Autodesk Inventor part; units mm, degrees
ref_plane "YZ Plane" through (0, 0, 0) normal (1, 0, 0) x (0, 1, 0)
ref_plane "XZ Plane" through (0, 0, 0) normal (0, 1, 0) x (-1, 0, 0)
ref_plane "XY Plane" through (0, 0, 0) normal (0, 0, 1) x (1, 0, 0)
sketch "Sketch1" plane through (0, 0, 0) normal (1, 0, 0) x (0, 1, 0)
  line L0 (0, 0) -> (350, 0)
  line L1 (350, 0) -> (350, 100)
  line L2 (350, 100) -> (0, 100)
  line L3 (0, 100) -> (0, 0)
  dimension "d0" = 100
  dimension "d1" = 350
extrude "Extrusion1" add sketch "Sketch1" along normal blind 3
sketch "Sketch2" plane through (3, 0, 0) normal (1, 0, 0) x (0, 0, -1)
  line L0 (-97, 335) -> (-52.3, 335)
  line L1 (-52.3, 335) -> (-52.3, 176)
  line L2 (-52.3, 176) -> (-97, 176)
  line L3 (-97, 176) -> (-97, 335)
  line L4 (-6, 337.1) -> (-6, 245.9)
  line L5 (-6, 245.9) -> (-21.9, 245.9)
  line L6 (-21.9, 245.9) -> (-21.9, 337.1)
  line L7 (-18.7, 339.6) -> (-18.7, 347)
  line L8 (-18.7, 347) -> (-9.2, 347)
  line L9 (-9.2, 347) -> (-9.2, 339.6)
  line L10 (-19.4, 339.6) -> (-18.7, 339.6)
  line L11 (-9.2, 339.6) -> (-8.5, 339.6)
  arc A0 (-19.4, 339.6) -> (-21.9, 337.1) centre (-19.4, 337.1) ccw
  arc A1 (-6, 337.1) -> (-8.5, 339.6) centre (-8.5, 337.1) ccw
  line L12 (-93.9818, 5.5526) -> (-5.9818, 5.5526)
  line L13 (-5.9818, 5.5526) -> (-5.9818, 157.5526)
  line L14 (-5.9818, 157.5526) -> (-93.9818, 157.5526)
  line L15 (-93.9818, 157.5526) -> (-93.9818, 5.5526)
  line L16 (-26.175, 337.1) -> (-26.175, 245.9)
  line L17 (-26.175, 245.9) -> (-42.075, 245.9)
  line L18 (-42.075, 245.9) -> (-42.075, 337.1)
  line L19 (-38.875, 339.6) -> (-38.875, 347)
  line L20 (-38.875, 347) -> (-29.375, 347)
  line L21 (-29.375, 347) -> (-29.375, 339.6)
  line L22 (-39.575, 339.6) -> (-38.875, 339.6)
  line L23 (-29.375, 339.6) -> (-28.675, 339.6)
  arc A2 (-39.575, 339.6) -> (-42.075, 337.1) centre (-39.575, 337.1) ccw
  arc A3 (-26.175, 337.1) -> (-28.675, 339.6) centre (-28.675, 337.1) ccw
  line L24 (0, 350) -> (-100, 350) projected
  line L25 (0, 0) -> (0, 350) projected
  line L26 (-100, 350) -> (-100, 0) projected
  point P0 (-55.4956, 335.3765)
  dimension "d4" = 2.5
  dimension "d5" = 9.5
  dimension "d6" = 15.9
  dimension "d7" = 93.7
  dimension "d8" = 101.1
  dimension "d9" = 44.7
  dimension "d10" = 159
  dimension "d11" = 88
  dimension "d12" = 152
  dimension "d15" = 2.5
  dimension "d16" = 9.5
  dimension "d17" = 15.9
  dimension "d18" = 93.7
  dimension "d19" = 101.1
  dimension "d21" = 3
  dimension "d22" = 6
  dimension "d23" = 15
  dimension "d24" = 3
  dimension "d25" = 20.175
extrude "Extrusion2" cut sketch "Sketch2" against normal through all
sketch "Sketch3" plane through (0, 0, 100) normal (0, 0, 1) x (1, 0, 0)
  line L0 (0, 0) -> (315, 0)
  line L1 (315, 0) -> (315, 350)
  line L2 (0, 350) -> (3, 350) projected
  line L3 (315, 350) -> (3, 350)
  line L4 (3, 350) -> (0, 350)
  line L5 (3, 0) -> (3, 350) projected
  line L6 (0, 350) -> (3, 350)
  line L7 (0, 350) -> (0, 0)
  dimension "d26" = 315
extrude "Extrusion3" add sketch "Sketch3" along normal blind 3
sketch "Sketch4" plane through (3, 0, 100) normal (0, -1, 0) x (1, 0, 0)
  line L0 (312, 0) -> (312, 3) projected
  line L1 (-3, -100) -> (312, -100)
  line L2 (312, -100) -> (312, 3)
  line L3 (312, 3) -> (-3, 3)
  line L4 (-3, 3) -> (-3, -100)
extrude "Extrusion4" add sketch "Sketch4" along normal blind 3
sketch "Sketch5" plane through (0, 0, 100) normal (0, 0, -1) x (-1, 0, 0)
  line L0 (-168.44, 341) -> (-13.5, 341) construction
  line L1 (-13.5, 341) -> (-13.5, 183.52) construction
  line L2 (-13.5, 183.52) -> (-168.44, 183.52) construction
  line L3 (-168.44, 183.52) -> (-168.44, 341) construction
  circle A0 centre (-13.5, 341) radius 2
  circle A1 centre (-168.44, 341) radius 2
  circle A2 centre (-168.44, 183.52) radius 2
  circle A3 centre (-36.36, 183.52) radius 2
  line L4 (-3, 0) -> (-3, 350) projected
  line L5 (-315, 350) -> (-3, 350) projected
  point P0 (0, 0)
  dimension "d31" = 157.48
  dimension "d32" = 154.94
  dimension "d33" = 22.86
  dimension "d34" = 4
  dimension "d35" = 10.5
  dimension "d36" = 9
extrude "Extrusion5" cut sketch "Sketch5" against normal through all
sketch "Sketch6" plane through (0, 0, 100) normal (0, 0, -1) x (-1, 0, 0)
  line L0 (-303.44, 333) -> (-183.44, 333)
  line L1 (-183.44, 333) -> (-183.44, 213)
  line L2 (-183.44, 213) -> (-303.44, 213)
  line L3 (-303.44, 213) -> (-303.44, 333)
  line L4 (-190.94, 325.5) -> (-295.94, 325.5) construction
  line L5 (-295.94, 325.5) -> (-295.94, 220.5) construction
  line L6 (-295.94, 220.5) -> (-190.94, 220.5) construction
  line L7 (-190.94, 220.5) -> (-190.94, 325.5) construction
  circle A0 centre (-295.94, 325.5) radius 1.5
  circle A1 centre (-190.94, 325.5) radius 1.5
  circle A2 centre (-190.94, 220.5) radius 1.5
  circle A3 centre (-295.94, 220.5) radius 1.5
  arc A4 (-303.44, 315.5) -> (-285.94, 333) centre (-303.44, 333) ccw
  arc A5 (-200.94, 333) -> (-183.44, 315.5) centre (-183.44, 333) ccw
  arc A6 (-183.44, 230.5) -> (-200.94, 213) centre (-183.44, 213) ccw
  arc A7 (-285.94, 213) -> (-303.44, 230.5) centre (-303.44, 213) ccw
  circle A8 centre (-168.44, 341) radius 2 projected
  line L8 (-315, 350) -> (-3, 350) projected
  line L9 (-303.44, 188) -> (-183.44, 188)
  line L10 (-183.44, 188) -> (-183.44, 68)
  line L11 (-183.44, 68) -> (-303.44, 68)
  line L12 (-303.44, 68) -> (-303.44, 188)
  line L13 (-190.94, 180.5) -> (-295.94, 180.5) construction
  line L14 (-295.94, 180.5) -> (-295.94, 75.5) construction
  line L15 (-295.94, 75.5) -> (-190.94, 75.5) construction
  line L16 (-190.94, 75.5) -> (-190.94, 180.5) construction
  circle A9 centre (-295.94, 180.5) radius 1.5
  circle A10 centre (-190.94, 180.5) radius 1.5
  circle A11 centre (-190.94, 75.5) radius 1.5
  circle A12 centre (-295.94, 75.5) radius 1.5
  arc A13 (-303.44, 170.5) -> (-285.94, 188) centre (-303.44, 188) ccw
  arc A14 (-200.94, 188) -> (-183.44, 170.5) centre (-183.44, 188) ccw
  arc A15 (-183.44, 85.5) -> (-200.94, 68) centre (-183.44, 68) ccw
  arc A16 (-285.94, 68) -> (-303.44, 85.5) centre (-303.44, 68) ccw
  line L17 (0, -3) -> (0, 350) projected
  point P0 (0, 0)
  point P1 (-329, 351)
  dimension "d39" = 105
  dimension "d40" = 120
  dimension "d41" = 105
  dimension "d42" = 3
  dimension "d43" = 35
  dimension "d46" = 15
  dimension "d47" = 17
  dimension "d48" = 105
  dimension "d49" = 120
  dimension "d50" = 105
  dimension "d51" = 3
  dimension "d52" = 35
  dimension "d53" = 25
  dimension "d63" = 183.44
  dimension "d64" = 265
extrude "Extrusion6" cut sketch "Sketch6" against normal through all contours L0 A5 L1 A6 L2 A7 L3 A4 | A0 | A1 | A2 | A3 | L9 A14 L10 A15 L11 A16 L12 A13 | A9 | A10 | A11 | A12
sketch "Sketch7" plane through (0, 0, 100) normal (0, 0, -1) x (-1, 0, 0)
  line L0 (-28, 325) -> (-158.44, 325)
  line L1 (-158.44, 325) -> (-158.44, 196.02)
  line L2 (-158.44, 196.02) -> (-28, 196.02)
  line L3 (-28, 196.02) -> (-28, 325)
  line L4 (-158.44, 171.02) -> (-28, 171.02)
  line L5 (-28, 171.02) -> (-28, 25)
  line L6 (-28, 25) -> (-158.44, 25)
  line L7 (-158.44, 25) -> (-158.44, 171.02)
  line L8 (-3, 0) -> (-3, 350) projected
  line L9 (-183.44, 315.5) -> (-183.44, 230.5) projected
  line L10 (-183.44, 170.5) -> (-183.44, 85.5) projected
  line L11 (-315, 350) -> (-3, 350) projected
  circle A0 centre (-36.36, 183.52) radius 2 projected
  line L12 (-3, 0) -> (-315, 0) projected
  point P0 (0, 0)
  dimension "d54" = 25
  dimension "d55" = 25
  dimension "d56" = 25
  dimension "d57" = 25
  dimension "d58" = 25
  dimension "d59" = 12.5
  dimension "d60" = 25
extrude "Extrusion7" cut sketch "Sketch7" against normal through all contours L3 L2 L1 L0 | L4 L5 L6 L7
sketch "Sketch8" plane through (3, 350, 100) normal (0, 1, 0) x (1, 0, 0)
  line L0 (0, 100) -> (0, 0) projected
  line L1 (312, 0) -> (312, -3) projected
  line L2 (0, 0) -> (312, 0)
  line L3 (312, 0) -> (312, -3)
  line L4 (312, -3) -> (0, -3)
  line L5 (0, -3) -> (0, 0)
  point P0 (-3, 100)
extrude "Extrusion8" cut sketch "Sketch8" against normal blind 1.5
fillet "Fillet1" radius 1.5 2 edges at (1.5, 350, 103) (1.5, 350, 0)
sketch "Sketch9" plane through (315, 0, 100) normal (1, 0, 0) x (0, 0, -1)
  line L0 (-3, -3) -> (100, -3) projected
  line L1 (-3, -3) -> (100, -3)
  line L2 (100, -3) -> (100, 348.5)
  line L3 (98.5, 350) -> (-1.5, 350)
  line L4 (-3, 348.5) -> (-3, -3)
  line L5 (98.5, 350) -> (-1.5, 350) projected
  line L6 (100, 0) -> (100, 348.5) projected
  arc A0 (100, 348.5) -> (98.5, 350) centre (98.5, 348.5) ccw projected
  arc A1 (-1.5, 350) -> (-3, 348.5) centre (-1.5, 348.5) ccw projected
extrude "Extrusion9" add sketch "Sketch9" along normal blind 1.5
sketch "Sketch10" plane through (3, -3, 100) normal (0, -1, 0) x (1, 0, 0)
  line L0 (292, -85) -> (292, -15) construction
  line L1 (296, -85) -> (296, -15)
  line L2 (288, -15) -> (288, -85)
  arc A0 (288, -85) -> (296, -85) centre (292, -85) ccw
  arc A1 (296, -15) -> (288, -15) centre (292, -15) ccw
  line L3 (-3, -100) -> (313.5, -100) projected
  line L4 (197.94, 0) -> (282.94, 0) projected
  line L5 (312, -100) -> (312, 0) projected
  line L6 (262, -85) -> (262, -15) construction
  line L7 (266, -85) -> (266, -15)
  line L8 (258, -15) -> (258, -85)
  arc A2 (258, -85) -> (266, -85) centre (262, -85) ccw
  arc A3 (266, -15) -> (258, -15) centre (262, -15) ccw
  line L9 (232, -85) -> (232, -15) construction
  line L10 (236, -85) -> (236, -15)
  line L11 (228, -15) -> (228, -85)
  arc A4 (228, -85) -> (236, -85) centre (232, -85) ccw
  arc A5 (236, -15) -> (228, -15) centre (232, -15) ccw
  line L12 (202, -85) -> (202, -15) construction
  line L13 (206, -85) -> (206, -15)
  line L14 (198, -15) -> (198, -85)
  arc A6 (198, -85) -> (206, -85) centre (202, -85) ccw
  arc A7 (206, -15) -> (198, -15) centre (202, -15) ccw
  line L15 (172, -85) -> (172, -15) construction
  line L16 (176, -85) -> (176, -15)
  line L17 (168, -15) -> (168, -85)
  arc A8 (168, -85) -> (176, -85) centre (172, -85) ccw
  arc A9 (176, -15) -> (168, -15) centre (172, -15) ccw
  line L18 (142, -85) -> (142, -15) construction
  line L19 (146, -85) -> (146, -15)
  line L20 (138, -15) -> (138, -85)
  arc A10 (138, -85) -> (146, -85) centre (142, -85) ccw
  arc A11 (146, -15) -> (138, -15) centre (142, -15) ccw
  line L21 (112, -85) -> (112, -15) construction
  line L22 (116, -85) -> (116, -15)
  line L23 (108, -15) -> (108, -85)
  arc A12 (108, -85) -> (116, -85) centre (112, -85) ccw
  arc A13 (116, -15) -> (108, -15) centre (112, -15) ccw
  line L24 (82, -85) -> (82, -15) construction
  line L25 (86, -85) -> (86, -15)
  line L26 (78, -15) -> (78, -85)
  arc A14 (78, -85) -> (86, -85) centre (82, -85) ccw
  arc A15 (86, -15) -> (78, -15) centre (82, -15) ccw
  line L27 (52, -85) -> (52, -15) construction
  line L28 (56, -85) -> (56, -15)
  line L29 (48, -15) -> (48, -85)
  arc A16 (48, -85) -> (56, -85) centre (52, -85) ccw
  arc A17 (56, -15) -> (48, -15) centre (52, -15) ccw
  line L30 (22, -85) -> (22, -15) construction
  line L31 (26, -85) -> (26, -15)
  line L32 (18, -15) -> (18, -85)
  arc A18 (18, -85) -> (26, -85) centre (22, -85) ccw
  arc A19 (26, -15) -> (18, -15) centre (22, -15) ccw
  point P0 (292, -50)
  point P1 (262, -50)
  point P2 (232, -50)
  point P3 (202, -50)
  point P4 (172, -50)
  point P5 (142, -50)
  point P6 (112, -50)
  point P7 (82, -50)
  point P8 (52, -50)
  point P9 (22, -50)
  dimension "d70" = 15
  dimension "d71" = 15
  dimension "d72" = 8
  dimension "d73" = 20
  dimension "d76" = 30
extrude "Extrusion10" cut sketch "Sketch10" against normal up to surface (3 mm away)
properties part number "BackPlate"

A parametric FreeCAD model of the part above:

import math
import FreeCAD as App
import Part
import Sketcher

V = App.Vector
Q = App.Units.Quantity


def edges_at(feature, points):
    """Names of the edges that pass closest to the given points."""
    edges = feature.Shape.Edges
    near = lambda p: min(range(len(edges)), key=lambda i: edges[i].distToShape(Part.Vertex(*p))[0])
    return sorted({f"Edge{near(p) + 1}" for p in points})


def add_polygon(sketch, points):
    """Adds a closed chain of lines whose ends are joined by coincident constraints."""
    first, n = sketch.GeometryCount, len(points)
    for a, b in zip(points, points[1:] + points[:1]):
        sketch.addGeometry(Part.LineSegment(App.Vector(*a, 0), App.Vector(*b, 0)), False)
    for i in range(n):
        sketch.addConstraint(Sketcher.Constraint("Coincident", first + i, 2, first + (i + 1) % n, 1))

doc = App.newDocument("Part")
body = doc.addObject("PartDesign::Body", "Body")

sketch1 = body.newObject("Sketcher::SketchObject", "Sketch")
sketch1.AttachmentSupport = (doc.getObject("YZ_Plane"), [""])
sketch1.MapMode = "FlatFace"
add_polygon(sketch1, [(0, 100), (0, 0), (350, 0), (350, 100)])
sketch1.addConstraint([
    Sketcher.Constraint("Vertical", 0),
    Sketcher.Constraint("Horizontal", 1),
    Sketcher.Constraint("Vertical", 2),
    Sketcher.Constraint("Horizontal", 3),
    Sketcher.Constraint("Coincident", 0, 2, -1, 1),
    Sketcher.Constraint("DistanceX", 1, 1, 1, 2, Q("350 mm")),
    Sketcher.Constraint("DistanceY", 0, 2, 0, 1, Q("100 mm")),
])
pad1 = body.newObject("PartDesign::Pad", "Pad")
pad1.Profile = sketch1
pad1.Length = 3

sketch2 = body.newObject("Sketcher::SketchObject", "Sketch001")
sketch2.AttachmentSupport = (doc.getObject("YZ_Plane"), [""])
sketch2.MapMode = "FlatFace"
sketch2.AttachmentOffset = App.Placement(V(0, 0, 3), App.Rotation())
add_polygon(sketch2, [(335, 52.3), (335, 97), (176, 97), (176, 52.3)])
sketch2.addGeometry(Part.LineSegment(V(245.9, 6, 0), V(337.1, 6, 0)), False)
sketch2.addGeometry(Part.ArcOfCircle(Part.Circle(V(337.1, 8.5, 0), V(0, 0, 1), 2.5), math.radians(-90), math.radians(0)), False)
sketch2.addGeometry(Part.LineSegment(V(339.6, 8.5, 0), V(339.6, 9.2, 0)), False)
sketch2.addGeometry(Part.LineSegment(V(339.6, 9.2, 0), V(347, 9.2, 0)), False)
sketch2.addGeometry(Part.LineSegment(V(347, 9.2, 0), V(347, 18.7, 0)), False)
sketch2.addGeometry(Part.LineSegment(V(347, 18.7, 0), V(339.6, 18.7, 0)), False)
sketch2.addGeometry(Part.LineSegment(V(339.6, 18.7, 0), V(339.6, 19.4, 0)), False)
sketch2.addGeometry(Part.ArcOfCircle(Part.Circle(V(337.1, 19.4, 0), V(0, 0, 1), 2.5), math.radians(0), math.radians(90)), False)
sketch2.addGeometry(Part.LineSegment(V(337.1, 21.9, 0), V(245.9, 21.9, 0)), False)
sketch2.addGeometry(Part.LineSegment(V(245.9, 21.9, 0), V(245.9, 6, 0)), False)
add_polygon(sketch2, [(157.6, 94), (5.6, 94), (5.6, 6), (157.6, 6)])
sketch2.addGeometry(Part.LineSegment(V(245.9, 26.2, 0), V(337.1, 26.2, 0)), False)
sketch2.addGeometry(Part.ArcOfCircle(Part.Circle(V(337.1, 28.7, 0), V(0, 0, 1), 2.5), math.radians(-90), math.radians(0)), False)
sketch2.addGeometry(Part.LineSegment(V(339.6, 28.7, 0), V(339.6, 29.4, 0)), False)
sketch2.addGeometry(Part.LineSegment(V(339.6, 29.4, 0), V(347, 29.4, 0)), False)
sketch2.addGeometry(Part.LineSegment(V(347, 29.4, 0), V(347, 38.9, 0)), False)
sketch2.addGeometry(Part.LineSegment(V(347, 38.9, 0), V(339.6, 38.9, 0)), False)
sketch2.addGeometry(Part.LineSegment(V(339.6, 38.9, 0), V(339.6, 39.6, 0)), False)
sketch2.addGeometry(Part.ArcOfCircle(Part.Circle(V(337.1, 39.6, 0), V(0, 0, 1), 2.5), math.radians(0), math.radians(90)), False)
sketch2.addGeometry(Part.LineSegment(V(337.1, 42.1, 0), V(245.9, 42.1, 0)), False)
sketch2.addGeometry(Part.LineSegment(V(245.9, 42.1, 0), V(245.9, 26.2, 0)), False)
sketch2.addConstraint([
    Sketcher.Constraint("Tangent", 4, 2, 5, 1),
    Sketcher.Constraint("Tangent", 5, 2, 6, 1),
    Sketcher.Constraint("Coincident", 6, 2, 7, 1),
    Sketcher.Constraint("Coincident", 7, 2, 8, 1),
    Sketcher.Constraint("Coincident", 8, 2, 9, 1),
    Sketcher.Constraint("Coincident", 9, 2, 10, 1),
    Sketcher.Constraint("Tangent", 10, 2, 11, 1),
    Sketcher.Constraint("Tangent", 11, 2, 12, 1),
    Sketcher.Constraint("Coincident", 12, 2, 13, 1),
    Sketcher.Constraint("Coincident", 13, 2, 4, 1),
    Sketcher.Constraint("Tangent", 18, 2, 19, 1),
    Sketcher.Constraint("Tangent", 19, 2, 20, 1),
    Sketcher.Constraint("Coincident", 20, 2, 21, 1),
    Sketcher.Constraint("Coincident", 21, 2, 22, 1),
    Sketcher.Constraint("Coincident", 22, 2, 23, 1),
    Sketcher.Constraint("Coincident", 23, 2, 24, 1),
    Sketcher.Constraint("Tangent", 24, 2, 25, 1),
    Sketcher.Constraint("Tangent", 25, 2, 26, 1),
    Sketcher.Constraint("Coincident", 26, 2, 27, 1),
    Sketcher.Constraint("Coincident", 27, 2, 18, 1),
    Sketcher.Constraint("Vertical", 0),
    Sketcher.Constraint("Horizontal", 1),
    Sketcher.Constraint("Vertical", 2),
    Sketcher.Constraint("Horizontal", 3),
    Sketcher.Constraint("Horizontal", 4),
    Sketcher.Constraint("Vertical", 6),
    Sketcher.Constraint("Horizontal", 7),
    Sketcher.Constraint("Vertical", 8),
    Sketcher.Constraint("Horizontal", 9),
    Sketcher.Constraint("Vertical", 10),
    Sketcher.Constraint("Horizontal", 12),
    Sketcher.Constraint("Vertical", 13),
    Sketcher.Constraint("Horizontal", 14),
    Sketcher.Constraint("Vertical", 15),
    Sketcher.Constraint("Horizontal", 16),
    Sketcher.Constraint("Vertical", 17),
    Sketcher.Constraint("Horizontal", 18),
    Sketcher.Constraint("Vertical", 20),
    Sketcher.Constraint("Horizontal", 21),
    Sketcher.Constraint("Vertical", 22),
    Sketcher.Constraint("Horizontal", 23),
    Sketcher.Constraint("Vertical", 24),
    Sketcher.Constraint("Horizontal", 26),
    Sketcher.Constraint("Vertical", 27),
    Sketcher.Constraint("Equal", 5, 11),
    Sketcher.Constraint("Equal", 11, 19),
    Sketcher.Constraint("Equal", 19, 25),
    Sketcher.Constraint("Vertical", 5, 3, 11, 3),
    Sketcher.Constraint("Vertical", 11, 3, 19, 3),
    Sketcher.Constraint("Vertical", 19, 3, 25, 3),
    Sketcher.Constraint("Vertical", 8, 2, 21, 2),
    Sketcher.Constraint("Vertical", 13, 2, 26, 2),
    Sketcher.Constraint("Equal", 6, 10),
    Sketcher.Constraint("Equal", 10, 20),
    Sketcher.Constraint("Equal", 8, 22),
    Sketcher.Constraint("Equal", 20, 24),
    Sketcher.Constraint("Radius", 5, Q("2.5 mm")),
    Sketcher.Constraint("DistanceX", 1, 2, 1, 1, Q("159 mm")),
    Sketcher.Constraint("DistanceX", 14, 2, 14, 1, Q("152 mm")),
    Sketcher.Constraint("DistanceY", 15, 2, 15, 1, Q("88 mm")),
    Sketcher.Constraint("DistanceY", 0, 1, 0, 2, Q("44.7 mm")),
    Sketcher.Constraint("DistanceY", 8, 1, 8, 2, Q("9.5 mm")),
    Sketcher.Constraint("DistanceY", 13, 2, 13, 1, Q("15.9 mm")),
    Sketcher.Constraint("DistanceY", -1, 1, 4, 2, Q("6 mm")),
    Sketcher.Constraint("DistanceX", 4, 1, 4, 2, Q("91.2 mm")),
    Sketcher.Constraint("DistanceX", 7, 1, 7, 2, Q("7.4 mm")),
    Sketcher.Constraint("DistanceX", -1, 1, 0, 2, Q("335 mm")),
    Sketcher.Constraint("DistanceY", -1, 1, 0, 2, Q("97 mm")),
    Sketcher.Constraint("DistanceX", -1, 1, 7, 2, Q("347 mm")),
    Sketcher.Constraint("DistanceY", 5, 3, 19, 3, Q("20.175 mm")),
    Sketcher.Constraint("DistanceX", -1, 1, 14, 2, Q("5.5526 mm")),
    Sketcher.Constraint("DistanceY", -1, 1, 14, 2, Q("93.9818 mm")),
])
pocket1 = body.newObject("PartDesign::Pocket", "Pocket")
pocket1.Profile = sketch2
pocket1.Type = "ThroughAll"

sketch3 = body.newObject("Sketcher::SketchObject", "Sketch002")
sketch3.AttachmentSupport = (doc.getObject("XY_Plane"), [""])
sketch3.MapMode = "FlatFace"
sketch3.AttachmentOffset = App.Placement(V(0, 0, 100), App.Rotation())
add_polygon(sketch3, [(0, 350), (0, 0), (315, 0), (315, 350)])
sketch3.addConstraint([
    Sketcher.Constraint("Vertical", 0),
    Sketcher.Constraint("Horizontal", 1),
    Sketcher.Constraint("Vertical", 2),
    Sketcher.Constraint("Horizontal", 3),
    Sketcher.Constraint("Coincident", 0, 2, -1, 1),
    Sketcher.Constraint("DistanceX", 1, 1, 1, 2, Q("315 mm")),
    Sketcher.Constraint("DistanceY", 0, 2, 0, 1, Q("350 mm")),
])
pad2 = body.newObject("PartDesign::Pad", "Pad001")
pad2.Profile = sketch3
pad2.Length = 3

sketch4 = body.newObject("Sketcher::SketchObject", "Sketch003")
sketch4.AttachmentSupport = (doc.getObject("XZ_Plane"), [""])
sketch4.MapMode = "FlatFace"
add_polygon(sketch4, [(315, 0), (315, 103), (0, 103), (0, 0)])
sketch4.addConstraint([
    Sketcher.Constraint("Vertical", 0),
    Sketcher.Constraint("Horizontal", 1),
    Sketcher.Constraint("Vertical", 2),
    Sketcher.Constraint("Horizontal", 3),
    Sketcher.Constraint("Coincident", 2, 2, -1, 1),
    Sketcher.Constraint("DistanceX", 1, 2, 1, 1, Q("315 mm")),
    Sketcher.Constraint("DistanceY", 0, 1, 0, 2, Q("103 mm")),
])
pad3 = body.newObject("PartDesign::Pad", "Pad002")
pad3.Profile = sketch4
pad3.Length = 3

sketch5 = body.newObject("Sketcher::SketchObject", "Sketch004")
sketch5.AttachmentSupport = (doc.getObject("XY_Plane"), [""])
sketch5.MapMode = "FlatFace"
sketch5.AttachmentOffset = App.Placement(V(0, 0, 100), App.Rotation())
sketch5.addGeometry([
    Part.Circle(V(13.5, 341, 0), V(0, 0, 1), 2),
    Part.Circle(V(168.4, 341, 0), V(0, 0, 1), 2),
    Part.Circle(V(168.4, 183.5, 0), V(0, 0, 1), 2),
    Part.Circle(V(36.4, 183.5, 0), V(0, 0, 1), 2),
], False)
sketch5.addConstraint([
    Sketcher.Constraint("Equal", 0, 1),
    Sketcher.Constraint("Equal", 1, 2),
    Sketcher.Constraint("Equal", 2, 3),
    Sketcher.Constraint("Horizontal", 0, 3, 1, 3),
    Sketcher.Constraint("Horizontal", 2, 3, 3, 3),
    Sketcher.Constraint("Vertical", 1, 3, 2, 3),
    Sketcher.Constraint("Diameter", 0, Q("4 mm")),
    Sketcher.Constraint("DistanceX", 0, 3, 1, 3, Q("154.94 mm")),
    Sketcher.Constraint("DistanceY", 2, 3, 1, 3, Q("157.48 mm")),
    Sketcher.Constraint("DistanceX", 0, 3, 3, 3, Q("22.86 mm")),
    Sketcher.Constraint("DistanceY", -1, 1, 0, 3, Q("341 mm")),
    Sketcher.Constraint("DistanceX", -1, 1, 0, 3, Q("13.5 mm")),
])
pocket2 = body.newObject("PartDesign::Pocket", "Pocket001")
pocket2.Profile = sketch5
pocket2.Type = "ThroughAll"
pocket2.Reversed = True

sketch6 = body.newObject("Sketcher::SketchObject", "Sketch005")
sketch6.AttachmentSupport = (doc.getObject("XY_Plane"), [""])
sketch6.MapMode = "FlatFace"
sketch6.AttachmentOffset = App.Placement(V(0, 0, 100), App.Rotation())
sketch6.addGeometry([
    Part.LineSegment(V(200.9, 333, 0), V(285.9, 333, 0)),
    Part.ArcOfCircle(Part.Circle(V(303.4, 333, 0), V(0, 0, 1), 17.5), math.radians(180), math.radians(270)),
    Part.LineSegment(V(303.4, 315.5, 0), V(303.4, 230.5, 0)),
    Part.ArcOfCircle(Part.Circle(V(303.4, 213, 0), V(0, 0, 1), 17.5), math.radians(90), math.radians(180)),
    Part.LineSegment(V(285.9, 213, 0), V(200.9, 213, 0)),
    Part.ArcOfCircle(Part.Circle(V(183.4, 213, 0), V(0, 0, 1), 17.5), math.radians(0), math.radians(90)),
    Part.LineSegment(V(183.4, 230.5, 0), V(183.4, 315.5, 0)),
    Part.ArcOfCircle(Part.Circle(V(183.4, 333, 0), V(0, 0, 1), 17.5), math.radians(-90), math.radians(0)),
    Part.Circle(V(295.9, 325.5, 0), V(0, 0, 1), 1.5),
    Part.Circle(V(190.9, 325.5, 0), V(0, 0, 1), 1.5),
    Part.Circle(V(190.9, 220.5, 0), V(0, 0, 1), 1.5),
    Part.Circle(V(295.9, 220.5, 0), V(0, 0, 1), 1.5),
    Part.LineSegment(V(200.9, 188, 0), V(285.9, 188, 0)),
    Part.ArcOfCircle(Part.Circle(V(303.4, 188, 0), V(0, 0, 1), 17.5), math.radians(180), math.radians(270)),
    Part.LineSegment(V(303.4, 170.5, 0), V(303.4, 85.5, 0)),
    Part.ArcOfCircle(Part.Circle(V(303.4, 68, 0), V(0, 0, 1), 17.5), math.radians(90), math.radians(180)),
    Part.LineSegment(V(285.9, 68, 0), V(200.9, 68, 0)),
    Part.ArcOfCircle(Part.Circle(V(183.4, 68, 0), V(0, 0, 1), 17.5), math.radians(0), math.radians(90)),
    Part.LineSegment(V(183.4, 85.5, 0), V(183.4, 170.5, 0)),
    Part.ArcOfCircle(Part.Circle(V(183.4, 188, 0), V(0, 0, 1), 17.5), math.radians(-90), math.radians(0)),
    Part.Circle(V(295.9, 180.5, 0), V(0, 0, 1), 1.5),
    Part.Circle(V(190.9, 180.5, 0), V(0, 0, 1), 1.5),
    Part.Circle(V(190.9, 75.5, 0), V(0, 0, 1), 1.5),
    Part.Circle(V(295.9, 75.5, 0), V(0, 0, 1), 1.5),
], False)
sketch6.addConstraint([
    Sketcher.Constraint("Coincident", 0, 2, 1, 1),
    Sketcher.Constraint("Coincident", 1, 2, 2, 1),
    Sketcher.Constraint("Coincident", 2, 2, 3, 1),
    Sketcher.Constraint("Coincident", 3, 2, 4, 1),
    Sketcher.Constraint("Coincident", 4, 2, 5, 1),
    Sketcher.Constraint("Coincident", 5, 2, 6, 1),
    Sketcher.Constraint("Coincident", 6, 2, 7, 1),
    Sketcher.Constraint("Coincident", 7, 2, 0, 1),
    Sketcher.Constraint("Coincident", 12, 2, 13, 1),
    Sketcher.Constraint("Coincident", 13, 2, 14, 1),
    Sketcher.Constraint("Coincident", 14, 2, 15, 1),
    Sketcher.Constraint("Coincident", 15, 2, 16, 1),
    Sketcher.Constraint("Coincident", 16, 2, 17, 1),
    Sketcher.Constraint("Coincident", 17, 2, 18, 1),
    Sketcher.Constraint("Coincident", 18, 2, 19, 1),
    Sketcher.Constraint("Coincident", 19, 2, 12, 1),
    Sketcher.Constraint("Horizontal", 0),
    Sketcher.Constraint("Vertical", 2),
    Sketcher.Constraint("Horizontal", 4),
    Sketcher.Constraint("Vertical", 6),
    Sketcher.Constraint("Horizontal", 12),
    Sketcher.Constraint("Vertical", 14),
    Sketcher.Constraint("Horizontal", 16),
    Sketcher.Constraint("Vertical", 18),
    Sketcher.Constraint("Equal", 1, 3),
    Sketcher.Constraint("Equal", 3, 5),
    Sketcher.Constraint("Equal", 5, 7),
    Sketcher.Constraint("Equal", 8, 9),
    Sketcher.Constraint("Equal", 9, 10),
    Sketcher.Constraint("Equal", 10, 11),
    Sketcher.Constraint("Equal", 7, 13),
    Sketcher.Constraint("Equal", 13, 15),
    Sketcher.Constraint("Equal", 15, 17),
    Sketcher.Constraint("Equal", 17, 19),
    Sketcher.Constraint("Equal", 11, 20),
    Sketcher.Constraint("Equal", 20, 21),
    Sketcher.Constraint("Equal", 21, 22),
    Sketcher.Constraint("Equal", 22, 23),
    Sketcher.Constraint("Horizontal", 3, 3, 5, 3),
    Sketcher.Constraint("Horizontal", 1, 3, 7, 3),
    Sketcher.Constraint("Horizontal", 8, 3, 9, 3),
    Sketcher.Constraint("Horizontal", 10, 3, 11, 3),
    Sketcher.Constraint("Horizontal", 15, 3, 17, 3),
    Sketcher.Constraint("Horizontal", 13, 3, 19, 3),
    Sketcher.Constraint("Horizontal", 20, 3, 21, 3),
    Sketcher.Constraint("Horizontal", 22, 3, 23, 3),
    Sketcher.Constraint("Horizontal", 7, 3, 0, 2),
    Sketcher.Constraint("Horizontal", 5, 3, 3, 2),
    Sketcher.Constraint("Horizontal", 19, 3, 12, 2),
    Sketcher.Constraint("Horizontal", 17, 3, 15, 2),
    Sketcher.Constraint("Vertical", 1, 3, 3, 3),
    Sketcher.Constraint("Vertical", 5, 3, 7, 3),
    Sketcher.Constraint("Vertical", 9, 3, 10, 3),
    Sketcher.Constraint("Vertical", 8, 3, 11, 3),
    Sketcher.Constraint("Vertical", 3, 3, 13, 3),
    Sketcher.Constraint("Vertical", 13, 3, 15, 3),
    Sketcher.Constraint("Vertical", 7, 3, 17, 3),
    Sketcher.Constraint("Vertical", 17, 3, 19, 3),
    Sketcher.Constraint("Vertical", 11, 3, 20, 3),
    Sketcher.Constraint("Vertical", 10, 3, 21, 3),
    Sketcher.Constraint("Vertical", 21, 3, 22, 3),
    Sketcher.Constraint("Vertical", 20, 3, 23, 3),
    Sketcher.Constraint("Vertical", 15, 3, 1, 2),
    Sketcher.Constraint("Vertical", 19, 3, 5, 2),
    Sketcher.Constraint("Vertical", 2, 2, 13, 2),
    Sketcher.Constraint("Vertical", 6, 2, 17, 2),
    Sketcher.Constraint("Equal", 16, 2),
    Sketcher.Constraint("Equal", 6, 14),
    Sketcher.Constraint("Diameter", 8, Q("3 mm")),
    Sketcher.Constraint("Radius", 1, Q("17.5 mm")),
    Sketcher.Constraint("DistanceY", 3, 3, 1, 3, Q("120 mm")),
    Sketcher.Constraint("DistanceX", 9, 3, 8, 3, Q("105 mm")),
    Sketcher.Constraint("DistanceY", 10, 3, 9, 3, Q("105 mm")),
    Sketcher.Constraint("DistanceY", 13, 3, 3, 3, Q("25 mm")),
    Sketcher.Constraint("DistanceY", 22, 3, 21, 3, Q("105 mm")),
    Sketcher.Constraint("DistanceX", -1, 1, 5, 3, Q("183.44 mm")),
    Sketcher.Constraint("DistanceY", -1, 1, 1, 3, Q("333 mm")),
    Sketcher.Constraint("DistanceY", 20, 3, 11, 3, Q("40 mm")),
    Sketcher.Constraint("DistanceX", 0, 2, 8, 3, Q("10 mm")),
    Sketcher.Constraint("DistanceY", 1, 2, 8, 3, Q("10 mm")),
])
pocket3 = body.newObject("PartDesign::Pocket", "Pocket002")
pocket3.Profile = sketch6
pocket3.Type = "ThroughAll"
pocket3.Reversed = True

sketch7 = body.newObject("Sketcher::SketchObject", "Sketch006")
sketch7.AttachmentSupport = (doc.getObject("XY_Plane"), [""])
sketch7.MapMode = "FlatFace"
sketch7.AttachmentOffset = App.Placement(V(0, 0, 100), App.Rotation())
add_polygon(sketch7, [(28, 196), (28, 325), (158, 325), (158, 196)])
add_polygon(sketch7, [(28, 171), (158, 171), (158, 25), (28, 25)])
sketch7.addConstraint([
    Sketcher.Constraint("Vertical", 0),
    Sketcher.Constraint("Horizontal", 1),
    Sketcher.Constraint("Vertical", 2),
    Sketcher.Constraint("Horizontal", 3),
    Sketcher.Constraint("Horizontal", 4),
    Sketcher.Constraint("Vertical", 5),
    Sketcher.Constraint("Horizontal", 6),
    Sketcher.Constraint("Vertical", 7),
    Sketcher.Constraint("Vertical", 2, 2, 4, 2),
    Sketcher.Constraint("Vertical", 3, 2, 6, 2),
    Sketcher.Constraint("DistanceY", -1, 1, 5, 2, Q("25 mm")),
    Sketcher.Constraint("DistanceY", 4, 2, 2, 2, Q("25 mm")),
    Sketcher.Constraint("DistanceX", -1, 1, 0, 2, Q("28 mm")),
    Sketcher.Constraint("DistanceY", -1, 1, 0, 2, Q("325 mm")),
    Sketcher.Constraint("DistanceX", 1, 1, 1, 2, Q("130.44 mm")),
    Sketcher.Constraint("DistanceY", 0, 1, 0, 2, Q("128.98 mm")),
])
pocket4 = body.newObject("PartDesign::Pocket", "Pocket003")
pocket4.Profile = sketch7
pocket4.Type = "ThroughAll"
pocket4.Reversed = True

sketch8 = body.newObject("Sketcher::SketchObject", "Sketch007")
sketch8.AttachmentSupport = (doc.getObject("XZ_Plane"), [""])
sketch8.MapMode = "FlatFace"
sketch8.AttachmentOffset = App.Placement(V(0, 0, -350), App.Rotation())
add_polygon(sketch8, [(315, 103), (315, 100), (3, 100), (3, 103)])
sketch8.addConstraint([
    Sketcher.Constraint("Vertical", 0),
    Sketcher.Constraint("Horizontal", 1),
    Sketcher.Constraint("Vertical", 2),
    Sketcher.Constraint("Horizontal", 3),
    Sketcher.Constraint("DistanceX", 1, 2, 1, 1, Q("312 mm")),
    Sketcher.Constraint("DistanceY", 0, 2, 0, 1, Q("3 mm")),
    Sketcher.Constraint("DistanceX", -1, 1, 0, 2, Q("315 mm")),
    Sketcher.Constraint("DistanceY", -1, 1, 0, 2, Q("100 mm")),
])
pocket5 = body.newObject("PartDesign::Pocket", "Pocket004")
pocket5.Profile = sketch8
pocket5.Length = 1.5
pocket5.Reversed = True
doc.recompute()

fillet = body.newObject("PartDesign::Fillet", "Fillet")
fillet.Base = (pocket5, edges_at(pocket5, [(1.5, 350, 103), (1.5, 350, 0)]))
fillet.Radius = 1.5

sketch9 = body.newObject("Sketcher::SketchObject", "Sketch008")
sketch9.AttachmentSupport = (doc.getObject("YZ_Plane"), [""])
sketch9.MapMode = "FlatFace"
sketch9.AttachmentOffset = App.Placement(V(0, 0, 315), App.Rotation())
sketch9.addGeometry([
    Part.LineSegment(V(348.5, 103, 0), V(-3, 103, 0)),
    Part.LineSegment(V(-3, 103, 0), V(-3, 0, 0)),
    Part.LineSegment(V(-3, 0, 0), V(348.5, 0, 0)),
    Part.ArcOfCircle(Part.Circle(V(348.5, 1.5, 0), V(0, 0, 1), 1.5), math.radians(-90), math.radians(0)),
    Part.LineSegment(V(350, 1.5, 0), V(350, 101.5, 0)),
    Part.ArcOfCircle(Part.Circle(V(348.5, 101.5, 0), V(0, 0, 1), 1.5), math.radians(0), math.radians(90)),
], False)
sketch9.addConstraint([
    Sketcher.Constraint("Coincident", 0, 2, 1, 1),
    Sketcher.Constraint("Coincident", 1, 2, 2, 1),
    Sketcher.Constraint("Tangent", 2, 2, 3, 1),
    Sketcher.Constraint("Tangent", 3, 2, 4, 1),
    Sketcher.Constraint("Tangent", 4, 2, 5, 1),
    Sketcher.Constraint("Tangent", 5, 2, 0, 1),
    Sketcher.Constraint("Horizontal", 0),
    Sketcher.Constraint("Vertical", 1),
    Sketcher.Constraint("Horizontal", 2),
    Sketcher.Constraint("Vertical", 4),
    Sketcher.Constraint("Equal", 3, 5),
    Sketcher.Constraint("PointOnObject", 1, 2, -1),
    Sketcher.Constraint("Radius", 3, Q("1.5 mm")),
    Sketcher.Constraint("DistanceY", 1, 2, 1, 1, Q("103 mm")),
    Sketcher.Constraint("DistanceX", 0, 2, 0, 1, Q("351.5 mm")),
    Sketcher.Constraint("DistanceX", 0, 2, -1, 1, Q("3 mm")),
])
pad4 = body.newObject("PartDesign::Pad", "Pad003")
pad4.Profile = sketch9
pad4.Length = 1.5

sketch10 = body.newObject("Sketcher::SketchObject", "Sketch009")
sketch10.AttachmentSupport = (doc.getObject("XZ_Plane"), [""])
sketch10.MapMode = "FlatFace"
sketch10.AttachmentOffset = App.Placement(V(0, 0, 3), App.Rotation())
sketch10.addGeometry([
    Part.ArcOfCircle(Part.Circle(V(295, 15, 0), V(0, 0, 1), 4), math.radians(180), math.radians(360)),
    Part.LineSegment(V(299, 15, 0), V(299, 85, 0)),
    Part.ArcOfCircle(Part.Circle(V(295, 85, 0), V(0, 0, 1), 4), math.radians(0), math.radians(180)),
    Part.LineSegment(V(291, 85, 0), V(291, 15, 0)),
    Part.ArcOfCircle(Part.Circle(V(265, 15, 0), V(0, 0, 1), 4), math.radians(180), math.radians(360)),
    Part.LineSegment(V(269, 15, 0), V(269, 85, 0)),
    Part.ArcOfCircle(Part.Circle(V(265, 85, 0), V(0, 0, 1), 4), math.radians(0), math.radians(180)),
    Part.LineSegment(V(261, 85, 0), V(261, 15, 0)),
    Part.ArcOfCircle(Part.Circle(V(235, 15, 0), V(0, 0, 1), 4), math.radians(180), math.radians(360)),
    Part.LineSegment(V(239, 15, 0), V(239, 85, 0)),
    Part.ArcOfCircle(Part.Circle(V(235, 85, 0), V(0, 0, 1), 4), math.radians(0), math.radians(180)),
    Part.LineSegment(V(231, 85, 0), V(231, 15, 0)),
    Part.ArcOfCircle(Part.Circle(V(205, 15, 0), V(0, 0, 1), 4), math.radians(180), math.radians(360)),
    Part.LineSegment(V(209, 15, 0), V(209, 85, 0)),
    Part.ArcOfCircle(Part.Circle(V(205, 85, 0), V(0, 0, 1), 4), math.radians(0), math.radians(180)),
    Part.LineSegment(V(201, 85, 0), V(201, 15, 0)),
    Part.ArcOfCircle(Part.Circle(V(175, 15, 0), V(0, 0, 1), 4), math.radians(180), math.radians(360)),
    Part.LineSegment(V(179, 15, 0), V(179, 85, 0)),
    Part.ArcOfCircle(Part.Circle(V(175, 85, 0), V(0, 0, 1), 4), math.radians(0), math.radians(180)),
    Part.LineSegment(V(171, 85, 0), V(171, 15, 0)),
    Part.ArcOfCircle(Part.Circle(V(145, 15, 0), V(0, 0, 1), 4), math.radians(180), math.radians(360)),
    Part.LineSegment(V(149, 15, 0), V(149, 85, 0)),
    Part.ArcOfCircle(Part.Circle(V(145, 85, 0), V(0, 0, 1), 4), math.radians(0), math.radians(180)),
    Part.LineSegment(V(141, 85, 0), V(141, 15, 0)),
    Part.ArcOfCircle(Part.Circle(V(115, 15, 0), V(0, 0, 1), 4), math.radians(180), math.radians(360)),
    Part.LineSegment(V(119, 15, 0), V(119, 85, 0)),
    Part.ArcOfCircle(Part.Circle(V(115, 85, 0), V(0, 0, 1), 4), math.radians(0), math.radians(180)),
    Part.LineSegment(V(111, 85, 0), V(111, 15, 0)),
    Part.ArcOfCircle(Part.Circle(V(85, 15, 0), V(0, 0, 1), 4), math.radians(180), math.radians(360)),
    Part.LineSegment(V(89, 15, 0), V(89, 85, 0)),
    Part.ArcOfCircle(Part.Circle(V(85, 85, 0), V(0, 0, 1), 4), math.radians(0), math.radians(180)),
    Part.LineSegment(V(81, 85, 0), V(81, 15, 0)),
    Part.ArcOfCircle(Part.Circle(V(55, 15, 0), V(0, 0, 1), 4), math.radians(180), math.radians(360)),
    Part.LineSegment(V(59, 15, 0), V(59, 85, 0)),
    Part.ArcOfCircle(Part.Circle(V(55, 85, 0), V(0, 0, 1), 4), math.radians(0), math.radians(180)),
    Part.LineSegment(V(51, 85, 0), V(51, 15, 0)),
    Part.ArcOfCircle(Part.Circle(V(25, 15, 0), V(0, 0, 1), 4), math.radians(180), math.radians(360)),
    Part.LineSegment(V(29, 15, 0), V(29, 85, 0)),
    Part.ArcOfCircle(Part.Circle(V(25, 85, 0), V(0, 0, 1), 4), math.radians(0), math.radians(180)),
    Part.LineSegment(V(21, 85, 0), V(21, 15, 0)),
], False)
sketch10.addConstraint([
    Sketcher.Constraint("Tangent", 0, 2, 1, 1),
    Sketcher.Constraint("Tangent", 1, 2, 2, 1),
    Sketcher.Constraint("Tangent", 2, 2, 3, 1),
    Sketcher.Constraint("Tangent", 3, 2, 0, 1),
    Sketcher.Constraint("Tangent", 4, 2, 5, 1),
    Sketcher.Constraint("Tangent", 5, 2, 6, 1),
    Sketcher.Constraint("Tangent", 6, 2, 7, 1),
    Sketcher.Constraint("Tangent", 7, 2, 4, 1),
    Sketcher.Constraint("Tangent", 8, 2, 9, 1),
    Sketcher.Constraint("Tangent", 9, 2, 10, 1),
    Sketcher.Constraint("Tangent", 10, 2, 11, 1),
    Sketcher.Constraint("Tangent", 11, 2, 8, 1),
    Sketcher.Constraint("Tangent", 12, 2, 13, 1),
    Sketcher.Constraint("Tangent", 13, 2, 14, 1),
    Sketcher.Constraint("Tangent", 14, 2, 15, 1),
    Sketcher.Constraint("Tangent", 15, 2, 12, 1),
    Sketcher.Constraint("Tangent", 16, 2, 17, 1),
    Sketcher.Constraint("Tangent", 17, 2, 18, 1),
    Sketcher.Constraint("Tangent", 18, 2, 19, 1),
    Sketcher.Constraint("Tangent", 19, 2, 16, 1),
    Sketcher.Constraint("Tangent", 20, 2, 21, 1),
    Sketcher.Constraint("Tangent", 21, 2, 22, 1),
    Sketcher.Constraint("Tangent", 22, 2, 23, 1),
    Sketcher.Constraint("Tangent", 23, 2, 20, 1),
    Sketcher.Constraint("Tangent", 24, 2, 25, 1),
    Sketcher.Constraint("Tangent", 25, 2, 26, 1),
    Sketcher.Constraint("Tangent", 26, 2, 27, 1),
    Sketcher.Constraint("Tangent", 27, 2, 24, 1),
    Sketcher.Constraint("Tangent", 28, 2, 29, 1),
    Sketcher.Constraint("Tangent", 29, 2, 30, 1),
    Sketcher.Constraint("Tangent", 30, 2, 31, 1),
    Sketcher.Constraint("Tangent", 31, 2, 28, 1),
    Sketcher.Constraint("Tangent", 32, 2, 33, 1),
    Sketcher.Constraint("Tangent", 33, 2, 34, 1),
    Sketcher.Constraint("Tangent", 34, 2, 35, 1),
    Sketcher.Constraint("Tangent", 35, 2, 32, 1),
    Sketcher.Constraint("Tangent", 36, 2, 37, 1),
    Sketcher.Constraint("Tangent", 37, 2, 38, 1),
    Sketcher.Constraint("Tangent", 38, 2, 39, 1),
    Sketcher.Constraint("Tangent", 39, 2, 36, 1),
    Sketcher.Constraint("Vertical", 1),
    Sketcher.Constraint("Vertical", 3),
    Sketcher.Constraint("Vertical", 5),
    Sketcher.Constraint("Vertical", 7),
    Sketcher.Constraint("Vertical", 9),
    Sketcher.Constraint("Vertical", 11),
    Sketcher.Constraint("Vertical", 13),
    Sketcher.Constraint("Vertical", 15),
    Sketcher.Constraint("Vertical", 17),
    Sketcher.Constraint("Vertical", 19),
    Sketcher.Constraint("Vertical", 21),
    Sketcher.Constraint("Vertical", 23),
    Sketcher.Constraint("Vertical", 25),
    Sketcher.Constraint("Vertical", 27),
    Sketcher.Constraint("Vertical", 29),
    Sketcher.Constraint("Vertical", 31),
    Sketcher.Constraint("Vertical", 33),
    Sketcher.Constraint("Vertical", 35),
    Sketcher.Constraint("Vertical", 37),
    Sketcher.Constraint("Vertical", 39),
    Sketcher.Constraint("Equal", 2, 4),
    Sketcher.Constraint("Equal", 6, 8),
    Sketcher.Constraint("Equal", 10, 12),
    Sketcher.Constraint("Equal", 14, 16),
    Sketcher.Constraint("Equal", 18, 20),
    Sketcher.Constraint("Equal", 22, 24),
    Sketcher.Constraint("Equal", 26, 28),
    Sketcher.Constraint("Equal", 30, 32),
    Sketcher.Constraint("Equal", 34, 36),
    Sketcher.Constraint("Horizontal", 0, 3, 4, 3),
    Sketcher.Constraint("Horizontal", 2, 3, 6, 3),
    Sketcher.Constraint("Horizontal", 4, 3, 8, 3),
    Sketcher.Constraint("Horizontal", 6, 3, 10, 3),
    Sketcher.Constraint("Horizontal", 8, 3, 12, 3),
    Sketcher.Constraint("Horizontal", 10, 3, 14, 3),
    Sketcher.Constraint("Horizontal", 12, 3, 16, 3),
    Sketcher.Constraint("Horizontal", 14, 3, 18, 3),
    Sketcher.Constraint("Horizontal", 16, 3, 20, 3),
    Sketcher.Constraint("Horizontal", 18, 3, 22, 3),
    Sketcher.Constraint("Horizontal", 20, 3, 24, 3),
    Sketcher.Constraint("Horizontal", 22, 3, 26, 3),
    Sketcher.Constraint("Horizontal", 24, 3, 28, 3),
    Sketcher.Constraint("Horizontal", 26, 3, 30, 3),
    Sketcher.Constraint("Horizontal", 28, 3, 32, 3),
    Sketcher.Constraint("Horizontal", 30, 3, 34, 3),
    Sketcher.Constraint("Horizontal", 32, 3, 36, 3),
    Sketcher.Constraint("Horizontal", 34, 3, 38, 3),
    Sketcher.Constraint("Radius", 0, Q("4 mm")),
    Sketcher.Constraint("DistanceY", -1, 1, 0, 3, Q("15 mm")),
    Sketcher.Constraint("DistanceX", 4, 3, 0, 3, Q("30 mm")),
    Sketcher.Constraint("DistanceX", 8, 3, 4, 3, Q("30 mm")),
    Sketcher.Constraint("DistanceX", 12, 3, 8, 3, Q("30 mm")),
    Sketcher.Constraint("DistanceX", 16, 3, 12, 3, Q("30 mm")),
    Sketcher.Constraint("DistanceX", 20, 3, 16, 3, Q("30 mm")),
    Sketcher.Constraint("DistanceX", 24, 3, 20, 3, Q("30 mm")),
    Sketcher.Constraint("DistanceX", 28, 3, 24, 3, Q("30 mm")),
    Sketcher.Constraint("DistanceX", 32, 3, 28, 3, Q("30 mm")),
    Sketcher.Constraint("DistanceX", 36, 3, 32, 3, Q("30 mm")),
    Sketcher.Constraint("DistanceY", 1, 1, 1, 2, Q("70 mm")),
    Sketcher.Constraint("DistanceX", -1, 1, 0, 3, Q("295 mm")),
])
pocket6 = body.newObject("PartDesign::Pocket", "Pocket005")
pocket6.Profile = sketch10
pocket6.Length = 3

doc.recompute()
